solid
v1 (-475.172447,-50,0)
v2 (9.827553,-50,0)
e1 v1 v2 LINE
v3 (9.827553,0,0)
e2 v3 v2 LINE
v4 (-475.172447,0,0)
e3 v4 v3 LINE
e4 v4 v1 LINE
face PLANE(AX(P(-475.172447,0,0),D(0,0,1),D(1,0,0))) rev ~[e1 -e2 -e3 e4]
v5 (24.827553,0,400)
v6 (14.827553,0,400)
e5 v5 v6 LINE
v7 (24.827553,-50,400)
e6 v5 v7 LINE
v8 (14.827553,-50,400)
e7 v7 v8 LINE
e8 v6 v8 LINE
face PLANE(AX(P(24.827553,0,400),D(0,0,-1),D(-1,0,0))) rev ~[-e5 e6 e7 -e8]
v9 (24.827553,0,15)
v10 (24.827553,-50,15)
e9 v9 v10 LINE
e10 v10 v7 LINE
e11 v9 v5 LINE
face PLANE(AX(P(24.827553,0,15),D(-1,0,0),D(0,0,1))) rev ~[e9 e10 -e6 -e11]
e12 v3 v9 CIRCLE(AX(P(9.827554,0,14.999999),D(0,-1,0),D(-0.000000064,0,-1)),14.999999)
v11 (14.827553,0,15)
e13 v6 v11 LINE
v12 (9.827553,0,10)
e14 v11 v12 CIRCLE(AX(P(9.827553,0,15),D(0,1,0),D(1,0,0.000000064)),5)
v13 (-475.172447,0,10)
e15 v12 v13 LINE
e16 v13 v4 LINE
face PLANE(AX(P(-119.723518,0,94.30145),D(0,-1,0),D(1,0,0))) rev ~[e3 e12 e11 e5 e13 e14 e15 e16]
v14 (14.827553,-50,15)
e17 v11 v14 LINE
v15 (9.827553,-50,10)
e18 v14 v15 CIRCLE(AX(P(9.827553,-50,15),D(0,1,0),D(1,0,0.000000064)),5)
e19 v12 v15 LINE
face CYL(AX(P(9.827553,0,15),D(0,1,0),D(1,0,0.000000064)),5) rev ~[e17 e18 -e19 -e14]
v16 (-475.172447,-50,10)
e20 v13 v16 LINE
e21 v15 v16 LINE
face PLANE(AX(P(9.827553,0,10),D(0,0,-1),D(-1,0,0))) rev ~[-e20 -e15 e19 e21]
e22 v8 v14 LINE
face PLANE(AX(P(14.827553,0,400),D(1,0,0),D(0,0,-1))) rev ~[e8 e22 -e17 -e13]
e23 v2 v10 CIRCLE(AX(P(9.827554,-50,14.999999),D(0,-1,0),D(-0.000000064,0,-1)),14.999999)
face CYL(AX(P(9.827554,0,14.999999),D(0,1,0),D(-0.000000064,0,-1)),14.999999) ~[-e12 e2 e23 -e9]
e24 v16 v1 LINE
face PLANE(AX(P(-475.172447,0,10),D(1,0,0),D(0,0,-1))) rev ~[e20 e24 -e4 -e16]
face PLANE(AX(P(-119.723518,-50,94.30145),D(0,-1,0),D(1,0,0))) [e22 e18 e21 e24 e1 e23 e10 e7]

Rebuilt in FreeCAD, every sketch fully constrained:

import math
import FreeCAD as App
import Part
import Sketcher

V = App.Vector

doc = App.newDocument("Part")
body = doc.addObject("PartDesign::Body", "Body")

# Sketch on XZ plane
sketch1 = body.newObject("Sketcher::SketchObject", "Sketch")
sketch1.AttachmentSupport = (doc.getObject("XZ_Plane"), [""])
sketch1.MapMode = "FlatFace"
sketch1.addGeometry(Part.LineSegment(V(-475.2, 10, 0), V(-475.2, 0, 0)), False)
sketch1.addGeometry(Part.LineSegment(V(-475.2, 0, 0), V(9.8, 0, 0)), False)
sketch1.addGeometry(Part.ArcOfCircle(Part.Circle(V(9.8, 15, 0), V(0, 0, 1), 15), math.radians(-90), math.radians(0)), False)
sketch1.addGeometry(Part.LineSegment(V(24.8, 15, 0), V(24.8, 400, 0)), False)
sketch1.addGeometry(Part.LineSegment(V(24.8, 400, 0), V(14.8, 400, 0)), False)
sketch1.addGeometry(Part.LineSegment(V(14.8, 400, 0), V(14.8, 15, 0)), False)
sketch1.addGeometry(Part.ArcOfCircle(Part.Circle(V(9.8, 15, 0), V(0, 0, 1), 5), math.radians(-90), math.radians(0)), False)
sketch1.addGeometry(Part.LineSegment(V(9.8, 10, 0), V(-475.2, 10, 0)), False)
sketch1.addConstraint(Sketcher.Constraint("Coincident", 0, 2, 1, 1))
sketch1.addConstraint(Sketcher.Constraint("Tangent", 1, 2, 2, 1))
sketch1.addConstraint(Sketcher.Constraint("Tangent", 2, 2, 3, 1))
sketch1.addConstraint(Sketcher.Constraint("Coincident", 3, 2, 4, 1))
sketch1.addConstraint(Sketcher.Constraint("Coincident", 4, 2, 5, 1))
sketch1.addConstraint(Sketcher.Constraint("Tangent", 5, 2, 6, 2))
sketch1.addConstraint(Sketcher.Constraint("Tangent", 6, 1, 7, 1))
sketch1.addConstraint(Sketcher.Constraint("Coincident", 7, 2, 0, 1))
sketch1.addConstraint(Sketcher.Constraint("Vertical", 0))
sketch1.addConstraint(Sketcher.Constraint("Horizontal", 1))
sketch1.addConstraint(Sketcher.Constraint("Vertical", 3))
sketch1.addConstraint(Sketcher.Constraint("Horizontal", 4))
sketch1.addConstraint(Sketcher.Constraint("Vertical", 5))
sketch1.addConstraint(Sketcher.Constraint("Horizontal", 7))
sketch1.addConstraint(Sketcher.Constraint("Coincident", 6, 3, 2, 3))
sketch1.addConstraint(Sketcher.Constraint("PointOnObject", 0, 2, -1))
sketch1.addConstraint(Sketcher.Constraint("Radius", 2, 14.999999))
sketch1.addConstraint(Sketcher.Constraint("Radius", 6, 5.0))
sketch1.addConstraint(Sketcher.Constraint("DistanceX", 1, 1, 1, 2, 485.0))
sketch1.addConstraint(Sketcher.Constraint("DistanceY", 3, 1, 3, 2, 385.0))
sketch1.addConstraint(Sketcher.Constraint("DistanceX", -1, 1, 2, 3, 9.827554))
pad1 = body.newObject("PartDesign::Pad", "Pad")
pad1.Profile = sketch1
pad1.Length = 50

doc.recompute()
